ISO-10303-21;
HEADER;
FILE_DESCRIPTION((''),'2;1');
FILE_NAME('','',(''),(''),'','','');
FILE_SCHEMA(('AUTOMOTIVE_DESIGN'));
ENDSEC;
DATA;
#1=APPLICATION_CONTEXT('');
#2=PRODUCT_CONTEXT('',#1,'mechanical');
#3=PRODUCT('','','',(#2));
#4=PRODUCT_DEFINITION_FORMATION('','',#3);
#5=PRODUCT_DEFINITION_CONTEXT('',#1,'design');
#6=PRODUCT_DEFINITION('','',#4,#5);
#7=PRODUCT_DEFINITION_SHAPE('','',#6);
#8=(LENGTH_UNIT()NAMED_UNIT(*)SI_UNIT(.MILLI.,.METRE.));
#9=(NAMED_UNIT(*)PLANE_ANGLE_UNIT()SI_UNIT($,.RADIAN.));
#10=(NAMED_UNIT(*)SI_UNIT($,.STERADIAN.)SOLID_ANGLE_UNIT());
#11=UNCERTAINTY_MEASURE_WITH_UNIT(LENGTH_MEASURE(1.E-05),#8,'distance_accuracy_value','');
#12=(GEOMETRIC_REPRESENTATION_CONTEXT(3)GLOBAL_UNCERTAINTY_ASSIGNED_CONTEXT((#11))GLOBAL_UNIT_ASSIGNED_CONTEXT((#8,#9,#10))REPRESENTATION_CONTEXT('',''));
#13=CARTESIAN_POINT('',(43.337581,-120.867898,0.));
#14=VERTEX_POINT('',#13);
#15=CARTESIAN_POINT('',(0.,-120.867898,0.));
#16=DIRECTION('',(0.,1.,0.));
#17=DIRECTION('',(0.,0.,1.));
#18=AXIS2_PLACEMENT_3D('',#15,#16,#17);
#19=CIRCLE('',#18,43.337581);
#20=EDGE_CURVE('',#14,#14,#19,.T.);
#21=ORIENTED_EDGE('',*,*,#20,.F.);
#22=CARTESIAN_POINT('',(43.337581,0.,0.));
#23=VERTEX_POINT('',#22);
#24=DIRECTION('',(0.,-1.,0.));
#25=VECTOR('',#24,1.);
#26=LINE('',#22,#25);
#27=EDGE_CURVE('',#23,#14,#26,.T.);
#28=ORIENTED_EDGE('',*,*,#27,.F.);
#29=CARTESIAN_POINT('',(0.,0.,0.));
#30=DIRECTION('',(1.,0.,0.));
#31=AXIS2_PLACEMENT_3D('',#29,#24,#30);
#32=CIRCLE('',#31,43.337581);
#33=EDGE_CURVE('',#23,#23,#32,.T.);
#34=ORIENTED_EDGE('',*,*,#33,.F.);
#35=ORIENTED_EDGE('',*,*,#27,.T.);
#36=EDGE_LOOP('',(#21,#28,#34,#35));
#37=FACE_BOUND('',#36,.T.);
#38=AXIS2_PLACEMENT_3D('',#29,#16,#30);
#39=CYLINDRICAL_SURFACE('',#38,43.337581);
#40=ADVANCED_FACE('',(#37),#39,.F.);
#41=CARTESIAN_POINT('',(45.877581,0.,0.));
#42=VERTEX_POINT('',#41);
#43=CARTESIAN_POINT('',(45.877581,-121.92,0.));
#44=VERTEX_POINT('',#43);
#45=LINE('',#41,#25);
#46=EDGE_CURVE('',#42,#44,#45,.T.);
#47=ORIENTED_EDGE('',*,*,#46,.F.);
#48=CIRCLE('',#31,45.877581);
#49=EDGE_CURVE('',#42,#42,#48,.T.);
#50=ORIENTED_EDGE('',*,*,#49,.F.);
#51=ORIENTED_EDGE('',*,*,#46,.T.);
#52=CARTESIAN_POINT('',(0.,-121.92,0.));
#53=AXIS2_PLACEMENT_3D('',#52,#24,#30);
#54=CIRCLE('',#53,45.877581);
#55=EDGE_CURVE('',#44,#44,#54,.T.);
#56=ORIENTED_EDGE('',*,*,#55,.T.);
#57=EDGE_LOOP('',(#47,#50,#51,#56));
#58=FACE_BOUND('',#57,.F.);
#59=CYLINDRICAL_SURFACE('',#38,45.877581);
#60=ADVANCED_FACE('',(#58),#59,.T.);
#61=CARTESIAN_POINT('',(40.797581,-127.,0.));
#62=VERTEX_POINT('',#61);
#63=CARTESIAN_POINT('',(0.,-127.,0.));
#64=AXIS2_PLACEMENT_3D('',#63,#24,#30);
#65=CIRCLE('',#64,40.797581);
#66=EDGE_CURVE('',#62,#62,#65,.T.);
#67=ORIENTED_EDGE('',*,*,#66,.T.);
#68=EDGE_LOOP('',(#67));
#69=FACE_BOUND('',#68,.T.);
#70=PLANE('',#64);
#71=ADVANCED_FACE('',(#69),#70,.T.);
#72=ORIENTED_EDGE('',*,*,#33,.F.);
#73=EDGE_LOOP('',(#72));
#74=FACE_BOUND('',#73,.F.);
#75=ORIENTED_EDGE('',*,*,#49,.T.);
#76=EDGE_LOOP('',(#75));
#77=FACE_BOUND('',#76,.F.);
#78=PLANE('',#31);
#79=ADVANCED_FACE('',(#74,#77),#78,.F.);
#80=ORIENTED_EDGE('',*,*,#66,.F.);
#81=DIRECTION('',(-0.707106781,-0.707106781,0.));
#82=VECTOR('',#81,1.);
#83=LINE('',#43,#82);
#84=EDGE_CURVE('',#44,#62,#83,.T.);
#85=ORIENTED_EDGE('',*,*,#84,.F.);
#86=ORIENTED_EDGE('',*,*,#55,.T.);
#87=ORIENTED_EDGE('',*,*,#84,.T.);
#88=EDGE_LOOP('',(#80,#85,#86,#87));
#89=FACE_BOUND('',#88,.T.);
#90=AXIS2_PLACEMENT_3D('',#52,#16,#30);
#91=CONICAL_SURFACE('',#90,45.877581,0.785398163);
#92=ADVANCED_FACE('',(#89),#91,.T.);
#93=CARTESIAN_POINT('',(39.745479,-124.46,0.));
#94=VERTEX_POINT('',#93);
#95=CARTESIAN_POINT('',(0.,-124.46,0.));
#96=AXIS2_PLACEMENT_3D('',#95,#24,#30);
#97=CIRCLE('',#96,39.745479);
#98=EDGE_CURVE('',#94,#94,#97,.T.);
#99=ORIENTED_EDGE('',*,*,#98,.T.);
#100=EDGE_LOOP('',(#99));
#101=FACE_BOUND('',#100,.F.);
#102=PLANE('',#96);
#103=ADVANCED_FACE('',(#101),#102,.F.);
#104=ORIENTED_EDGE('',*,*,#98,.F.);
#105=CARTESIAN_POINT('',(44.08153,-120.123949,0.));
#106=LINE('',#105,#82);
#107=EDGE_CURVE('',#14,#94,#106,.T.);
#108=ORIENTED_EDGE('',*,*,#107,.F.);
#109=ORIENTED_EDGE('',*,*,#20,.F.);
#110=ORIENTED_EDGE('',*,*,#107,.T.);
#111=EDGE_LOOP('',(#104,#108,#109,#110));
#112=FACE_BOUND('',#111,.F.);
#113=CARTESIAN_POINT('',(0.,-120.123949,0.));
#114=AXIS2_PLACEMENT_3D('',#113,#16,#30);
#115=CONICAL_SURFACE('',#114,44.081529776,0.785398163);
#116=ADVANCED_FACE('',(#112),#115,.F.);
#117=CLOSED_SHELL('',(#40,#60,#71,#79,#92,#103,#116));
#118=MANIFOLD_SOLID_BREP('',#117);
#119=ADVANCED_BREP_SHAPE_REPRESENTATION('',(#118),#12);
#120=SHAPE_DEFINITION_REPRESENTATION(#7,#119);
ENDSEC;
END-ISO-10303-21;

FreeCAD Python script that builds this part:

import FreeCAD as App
import Part
import Sketcher
Q = App.Units.Quantity


def edges_at(feature, points):
    """Names of the edges that pass closest to the given points."""
    edges = feature.Shape.Edges
    near = lambda p: min(range(len(edges)), key=lambda i: edges[i].distToShape(Part.Vertex(*p))[0])
    return sorted({f"Edge{near(p) + 1}" for p in points})


def faces_at(feature, points):
    """Names of the faces that lie closest to the given points."""
    faces = feature.Shape.Faces
    near = lambda p: min(range(len(faces)), key=lambda i: faces[i].distToShape(Part.Vertex(*p))[0])
    return sorted({f"Face{near(p) + 1}" for p in points})

doc = App.newDocument("Part")
body = doc.addObject("PartDesign::Body", "Body")

# Sketch on XZ plane
sketch1 = body.newObject("Sketcher::SketchObject", "Sketch")
sketch1.AttachmentSupport = (doc.getObject("XZ_Plane"), [""])
sketch1.MapMode = "FlatFace"
sketch1.addGeometry(Part.Circle(App.Vector(0, 0, 0), App.Vector(0, 0, 1), 46), False)
sketch1.addConstraint(Sketcher.Constraint("Coincident", 0, 3, -1, 1))
sketch1.addConstraint(Sketcher.Constraint("Diameter", 0, 91.755162))
pad1 = body.newObject("PartDesign::Pad", "Pad")
pad1.Profile = sketch1
pad1.Length = Q("5 in")
doc.recompute()

chamfer = body.newObject("PartDesign::Chamfer", "Chamfer")
chamfer.Base = (pad1, edges_at(pad1, [(-45.878, -127, 0)]))
chamfer.Size = Q("0.2 in")
doc.recompute()

thickness = body.newObject("PartDesign::Thickness", "Thickness")
thickness.Base = (chamfer, faces_at(chamfer, [(0, 0, 0)]))
thickness.Value = Q("0.1 in")
thickness.Reversed = True
thickness.Join = "Arc"

doc.recompute()
